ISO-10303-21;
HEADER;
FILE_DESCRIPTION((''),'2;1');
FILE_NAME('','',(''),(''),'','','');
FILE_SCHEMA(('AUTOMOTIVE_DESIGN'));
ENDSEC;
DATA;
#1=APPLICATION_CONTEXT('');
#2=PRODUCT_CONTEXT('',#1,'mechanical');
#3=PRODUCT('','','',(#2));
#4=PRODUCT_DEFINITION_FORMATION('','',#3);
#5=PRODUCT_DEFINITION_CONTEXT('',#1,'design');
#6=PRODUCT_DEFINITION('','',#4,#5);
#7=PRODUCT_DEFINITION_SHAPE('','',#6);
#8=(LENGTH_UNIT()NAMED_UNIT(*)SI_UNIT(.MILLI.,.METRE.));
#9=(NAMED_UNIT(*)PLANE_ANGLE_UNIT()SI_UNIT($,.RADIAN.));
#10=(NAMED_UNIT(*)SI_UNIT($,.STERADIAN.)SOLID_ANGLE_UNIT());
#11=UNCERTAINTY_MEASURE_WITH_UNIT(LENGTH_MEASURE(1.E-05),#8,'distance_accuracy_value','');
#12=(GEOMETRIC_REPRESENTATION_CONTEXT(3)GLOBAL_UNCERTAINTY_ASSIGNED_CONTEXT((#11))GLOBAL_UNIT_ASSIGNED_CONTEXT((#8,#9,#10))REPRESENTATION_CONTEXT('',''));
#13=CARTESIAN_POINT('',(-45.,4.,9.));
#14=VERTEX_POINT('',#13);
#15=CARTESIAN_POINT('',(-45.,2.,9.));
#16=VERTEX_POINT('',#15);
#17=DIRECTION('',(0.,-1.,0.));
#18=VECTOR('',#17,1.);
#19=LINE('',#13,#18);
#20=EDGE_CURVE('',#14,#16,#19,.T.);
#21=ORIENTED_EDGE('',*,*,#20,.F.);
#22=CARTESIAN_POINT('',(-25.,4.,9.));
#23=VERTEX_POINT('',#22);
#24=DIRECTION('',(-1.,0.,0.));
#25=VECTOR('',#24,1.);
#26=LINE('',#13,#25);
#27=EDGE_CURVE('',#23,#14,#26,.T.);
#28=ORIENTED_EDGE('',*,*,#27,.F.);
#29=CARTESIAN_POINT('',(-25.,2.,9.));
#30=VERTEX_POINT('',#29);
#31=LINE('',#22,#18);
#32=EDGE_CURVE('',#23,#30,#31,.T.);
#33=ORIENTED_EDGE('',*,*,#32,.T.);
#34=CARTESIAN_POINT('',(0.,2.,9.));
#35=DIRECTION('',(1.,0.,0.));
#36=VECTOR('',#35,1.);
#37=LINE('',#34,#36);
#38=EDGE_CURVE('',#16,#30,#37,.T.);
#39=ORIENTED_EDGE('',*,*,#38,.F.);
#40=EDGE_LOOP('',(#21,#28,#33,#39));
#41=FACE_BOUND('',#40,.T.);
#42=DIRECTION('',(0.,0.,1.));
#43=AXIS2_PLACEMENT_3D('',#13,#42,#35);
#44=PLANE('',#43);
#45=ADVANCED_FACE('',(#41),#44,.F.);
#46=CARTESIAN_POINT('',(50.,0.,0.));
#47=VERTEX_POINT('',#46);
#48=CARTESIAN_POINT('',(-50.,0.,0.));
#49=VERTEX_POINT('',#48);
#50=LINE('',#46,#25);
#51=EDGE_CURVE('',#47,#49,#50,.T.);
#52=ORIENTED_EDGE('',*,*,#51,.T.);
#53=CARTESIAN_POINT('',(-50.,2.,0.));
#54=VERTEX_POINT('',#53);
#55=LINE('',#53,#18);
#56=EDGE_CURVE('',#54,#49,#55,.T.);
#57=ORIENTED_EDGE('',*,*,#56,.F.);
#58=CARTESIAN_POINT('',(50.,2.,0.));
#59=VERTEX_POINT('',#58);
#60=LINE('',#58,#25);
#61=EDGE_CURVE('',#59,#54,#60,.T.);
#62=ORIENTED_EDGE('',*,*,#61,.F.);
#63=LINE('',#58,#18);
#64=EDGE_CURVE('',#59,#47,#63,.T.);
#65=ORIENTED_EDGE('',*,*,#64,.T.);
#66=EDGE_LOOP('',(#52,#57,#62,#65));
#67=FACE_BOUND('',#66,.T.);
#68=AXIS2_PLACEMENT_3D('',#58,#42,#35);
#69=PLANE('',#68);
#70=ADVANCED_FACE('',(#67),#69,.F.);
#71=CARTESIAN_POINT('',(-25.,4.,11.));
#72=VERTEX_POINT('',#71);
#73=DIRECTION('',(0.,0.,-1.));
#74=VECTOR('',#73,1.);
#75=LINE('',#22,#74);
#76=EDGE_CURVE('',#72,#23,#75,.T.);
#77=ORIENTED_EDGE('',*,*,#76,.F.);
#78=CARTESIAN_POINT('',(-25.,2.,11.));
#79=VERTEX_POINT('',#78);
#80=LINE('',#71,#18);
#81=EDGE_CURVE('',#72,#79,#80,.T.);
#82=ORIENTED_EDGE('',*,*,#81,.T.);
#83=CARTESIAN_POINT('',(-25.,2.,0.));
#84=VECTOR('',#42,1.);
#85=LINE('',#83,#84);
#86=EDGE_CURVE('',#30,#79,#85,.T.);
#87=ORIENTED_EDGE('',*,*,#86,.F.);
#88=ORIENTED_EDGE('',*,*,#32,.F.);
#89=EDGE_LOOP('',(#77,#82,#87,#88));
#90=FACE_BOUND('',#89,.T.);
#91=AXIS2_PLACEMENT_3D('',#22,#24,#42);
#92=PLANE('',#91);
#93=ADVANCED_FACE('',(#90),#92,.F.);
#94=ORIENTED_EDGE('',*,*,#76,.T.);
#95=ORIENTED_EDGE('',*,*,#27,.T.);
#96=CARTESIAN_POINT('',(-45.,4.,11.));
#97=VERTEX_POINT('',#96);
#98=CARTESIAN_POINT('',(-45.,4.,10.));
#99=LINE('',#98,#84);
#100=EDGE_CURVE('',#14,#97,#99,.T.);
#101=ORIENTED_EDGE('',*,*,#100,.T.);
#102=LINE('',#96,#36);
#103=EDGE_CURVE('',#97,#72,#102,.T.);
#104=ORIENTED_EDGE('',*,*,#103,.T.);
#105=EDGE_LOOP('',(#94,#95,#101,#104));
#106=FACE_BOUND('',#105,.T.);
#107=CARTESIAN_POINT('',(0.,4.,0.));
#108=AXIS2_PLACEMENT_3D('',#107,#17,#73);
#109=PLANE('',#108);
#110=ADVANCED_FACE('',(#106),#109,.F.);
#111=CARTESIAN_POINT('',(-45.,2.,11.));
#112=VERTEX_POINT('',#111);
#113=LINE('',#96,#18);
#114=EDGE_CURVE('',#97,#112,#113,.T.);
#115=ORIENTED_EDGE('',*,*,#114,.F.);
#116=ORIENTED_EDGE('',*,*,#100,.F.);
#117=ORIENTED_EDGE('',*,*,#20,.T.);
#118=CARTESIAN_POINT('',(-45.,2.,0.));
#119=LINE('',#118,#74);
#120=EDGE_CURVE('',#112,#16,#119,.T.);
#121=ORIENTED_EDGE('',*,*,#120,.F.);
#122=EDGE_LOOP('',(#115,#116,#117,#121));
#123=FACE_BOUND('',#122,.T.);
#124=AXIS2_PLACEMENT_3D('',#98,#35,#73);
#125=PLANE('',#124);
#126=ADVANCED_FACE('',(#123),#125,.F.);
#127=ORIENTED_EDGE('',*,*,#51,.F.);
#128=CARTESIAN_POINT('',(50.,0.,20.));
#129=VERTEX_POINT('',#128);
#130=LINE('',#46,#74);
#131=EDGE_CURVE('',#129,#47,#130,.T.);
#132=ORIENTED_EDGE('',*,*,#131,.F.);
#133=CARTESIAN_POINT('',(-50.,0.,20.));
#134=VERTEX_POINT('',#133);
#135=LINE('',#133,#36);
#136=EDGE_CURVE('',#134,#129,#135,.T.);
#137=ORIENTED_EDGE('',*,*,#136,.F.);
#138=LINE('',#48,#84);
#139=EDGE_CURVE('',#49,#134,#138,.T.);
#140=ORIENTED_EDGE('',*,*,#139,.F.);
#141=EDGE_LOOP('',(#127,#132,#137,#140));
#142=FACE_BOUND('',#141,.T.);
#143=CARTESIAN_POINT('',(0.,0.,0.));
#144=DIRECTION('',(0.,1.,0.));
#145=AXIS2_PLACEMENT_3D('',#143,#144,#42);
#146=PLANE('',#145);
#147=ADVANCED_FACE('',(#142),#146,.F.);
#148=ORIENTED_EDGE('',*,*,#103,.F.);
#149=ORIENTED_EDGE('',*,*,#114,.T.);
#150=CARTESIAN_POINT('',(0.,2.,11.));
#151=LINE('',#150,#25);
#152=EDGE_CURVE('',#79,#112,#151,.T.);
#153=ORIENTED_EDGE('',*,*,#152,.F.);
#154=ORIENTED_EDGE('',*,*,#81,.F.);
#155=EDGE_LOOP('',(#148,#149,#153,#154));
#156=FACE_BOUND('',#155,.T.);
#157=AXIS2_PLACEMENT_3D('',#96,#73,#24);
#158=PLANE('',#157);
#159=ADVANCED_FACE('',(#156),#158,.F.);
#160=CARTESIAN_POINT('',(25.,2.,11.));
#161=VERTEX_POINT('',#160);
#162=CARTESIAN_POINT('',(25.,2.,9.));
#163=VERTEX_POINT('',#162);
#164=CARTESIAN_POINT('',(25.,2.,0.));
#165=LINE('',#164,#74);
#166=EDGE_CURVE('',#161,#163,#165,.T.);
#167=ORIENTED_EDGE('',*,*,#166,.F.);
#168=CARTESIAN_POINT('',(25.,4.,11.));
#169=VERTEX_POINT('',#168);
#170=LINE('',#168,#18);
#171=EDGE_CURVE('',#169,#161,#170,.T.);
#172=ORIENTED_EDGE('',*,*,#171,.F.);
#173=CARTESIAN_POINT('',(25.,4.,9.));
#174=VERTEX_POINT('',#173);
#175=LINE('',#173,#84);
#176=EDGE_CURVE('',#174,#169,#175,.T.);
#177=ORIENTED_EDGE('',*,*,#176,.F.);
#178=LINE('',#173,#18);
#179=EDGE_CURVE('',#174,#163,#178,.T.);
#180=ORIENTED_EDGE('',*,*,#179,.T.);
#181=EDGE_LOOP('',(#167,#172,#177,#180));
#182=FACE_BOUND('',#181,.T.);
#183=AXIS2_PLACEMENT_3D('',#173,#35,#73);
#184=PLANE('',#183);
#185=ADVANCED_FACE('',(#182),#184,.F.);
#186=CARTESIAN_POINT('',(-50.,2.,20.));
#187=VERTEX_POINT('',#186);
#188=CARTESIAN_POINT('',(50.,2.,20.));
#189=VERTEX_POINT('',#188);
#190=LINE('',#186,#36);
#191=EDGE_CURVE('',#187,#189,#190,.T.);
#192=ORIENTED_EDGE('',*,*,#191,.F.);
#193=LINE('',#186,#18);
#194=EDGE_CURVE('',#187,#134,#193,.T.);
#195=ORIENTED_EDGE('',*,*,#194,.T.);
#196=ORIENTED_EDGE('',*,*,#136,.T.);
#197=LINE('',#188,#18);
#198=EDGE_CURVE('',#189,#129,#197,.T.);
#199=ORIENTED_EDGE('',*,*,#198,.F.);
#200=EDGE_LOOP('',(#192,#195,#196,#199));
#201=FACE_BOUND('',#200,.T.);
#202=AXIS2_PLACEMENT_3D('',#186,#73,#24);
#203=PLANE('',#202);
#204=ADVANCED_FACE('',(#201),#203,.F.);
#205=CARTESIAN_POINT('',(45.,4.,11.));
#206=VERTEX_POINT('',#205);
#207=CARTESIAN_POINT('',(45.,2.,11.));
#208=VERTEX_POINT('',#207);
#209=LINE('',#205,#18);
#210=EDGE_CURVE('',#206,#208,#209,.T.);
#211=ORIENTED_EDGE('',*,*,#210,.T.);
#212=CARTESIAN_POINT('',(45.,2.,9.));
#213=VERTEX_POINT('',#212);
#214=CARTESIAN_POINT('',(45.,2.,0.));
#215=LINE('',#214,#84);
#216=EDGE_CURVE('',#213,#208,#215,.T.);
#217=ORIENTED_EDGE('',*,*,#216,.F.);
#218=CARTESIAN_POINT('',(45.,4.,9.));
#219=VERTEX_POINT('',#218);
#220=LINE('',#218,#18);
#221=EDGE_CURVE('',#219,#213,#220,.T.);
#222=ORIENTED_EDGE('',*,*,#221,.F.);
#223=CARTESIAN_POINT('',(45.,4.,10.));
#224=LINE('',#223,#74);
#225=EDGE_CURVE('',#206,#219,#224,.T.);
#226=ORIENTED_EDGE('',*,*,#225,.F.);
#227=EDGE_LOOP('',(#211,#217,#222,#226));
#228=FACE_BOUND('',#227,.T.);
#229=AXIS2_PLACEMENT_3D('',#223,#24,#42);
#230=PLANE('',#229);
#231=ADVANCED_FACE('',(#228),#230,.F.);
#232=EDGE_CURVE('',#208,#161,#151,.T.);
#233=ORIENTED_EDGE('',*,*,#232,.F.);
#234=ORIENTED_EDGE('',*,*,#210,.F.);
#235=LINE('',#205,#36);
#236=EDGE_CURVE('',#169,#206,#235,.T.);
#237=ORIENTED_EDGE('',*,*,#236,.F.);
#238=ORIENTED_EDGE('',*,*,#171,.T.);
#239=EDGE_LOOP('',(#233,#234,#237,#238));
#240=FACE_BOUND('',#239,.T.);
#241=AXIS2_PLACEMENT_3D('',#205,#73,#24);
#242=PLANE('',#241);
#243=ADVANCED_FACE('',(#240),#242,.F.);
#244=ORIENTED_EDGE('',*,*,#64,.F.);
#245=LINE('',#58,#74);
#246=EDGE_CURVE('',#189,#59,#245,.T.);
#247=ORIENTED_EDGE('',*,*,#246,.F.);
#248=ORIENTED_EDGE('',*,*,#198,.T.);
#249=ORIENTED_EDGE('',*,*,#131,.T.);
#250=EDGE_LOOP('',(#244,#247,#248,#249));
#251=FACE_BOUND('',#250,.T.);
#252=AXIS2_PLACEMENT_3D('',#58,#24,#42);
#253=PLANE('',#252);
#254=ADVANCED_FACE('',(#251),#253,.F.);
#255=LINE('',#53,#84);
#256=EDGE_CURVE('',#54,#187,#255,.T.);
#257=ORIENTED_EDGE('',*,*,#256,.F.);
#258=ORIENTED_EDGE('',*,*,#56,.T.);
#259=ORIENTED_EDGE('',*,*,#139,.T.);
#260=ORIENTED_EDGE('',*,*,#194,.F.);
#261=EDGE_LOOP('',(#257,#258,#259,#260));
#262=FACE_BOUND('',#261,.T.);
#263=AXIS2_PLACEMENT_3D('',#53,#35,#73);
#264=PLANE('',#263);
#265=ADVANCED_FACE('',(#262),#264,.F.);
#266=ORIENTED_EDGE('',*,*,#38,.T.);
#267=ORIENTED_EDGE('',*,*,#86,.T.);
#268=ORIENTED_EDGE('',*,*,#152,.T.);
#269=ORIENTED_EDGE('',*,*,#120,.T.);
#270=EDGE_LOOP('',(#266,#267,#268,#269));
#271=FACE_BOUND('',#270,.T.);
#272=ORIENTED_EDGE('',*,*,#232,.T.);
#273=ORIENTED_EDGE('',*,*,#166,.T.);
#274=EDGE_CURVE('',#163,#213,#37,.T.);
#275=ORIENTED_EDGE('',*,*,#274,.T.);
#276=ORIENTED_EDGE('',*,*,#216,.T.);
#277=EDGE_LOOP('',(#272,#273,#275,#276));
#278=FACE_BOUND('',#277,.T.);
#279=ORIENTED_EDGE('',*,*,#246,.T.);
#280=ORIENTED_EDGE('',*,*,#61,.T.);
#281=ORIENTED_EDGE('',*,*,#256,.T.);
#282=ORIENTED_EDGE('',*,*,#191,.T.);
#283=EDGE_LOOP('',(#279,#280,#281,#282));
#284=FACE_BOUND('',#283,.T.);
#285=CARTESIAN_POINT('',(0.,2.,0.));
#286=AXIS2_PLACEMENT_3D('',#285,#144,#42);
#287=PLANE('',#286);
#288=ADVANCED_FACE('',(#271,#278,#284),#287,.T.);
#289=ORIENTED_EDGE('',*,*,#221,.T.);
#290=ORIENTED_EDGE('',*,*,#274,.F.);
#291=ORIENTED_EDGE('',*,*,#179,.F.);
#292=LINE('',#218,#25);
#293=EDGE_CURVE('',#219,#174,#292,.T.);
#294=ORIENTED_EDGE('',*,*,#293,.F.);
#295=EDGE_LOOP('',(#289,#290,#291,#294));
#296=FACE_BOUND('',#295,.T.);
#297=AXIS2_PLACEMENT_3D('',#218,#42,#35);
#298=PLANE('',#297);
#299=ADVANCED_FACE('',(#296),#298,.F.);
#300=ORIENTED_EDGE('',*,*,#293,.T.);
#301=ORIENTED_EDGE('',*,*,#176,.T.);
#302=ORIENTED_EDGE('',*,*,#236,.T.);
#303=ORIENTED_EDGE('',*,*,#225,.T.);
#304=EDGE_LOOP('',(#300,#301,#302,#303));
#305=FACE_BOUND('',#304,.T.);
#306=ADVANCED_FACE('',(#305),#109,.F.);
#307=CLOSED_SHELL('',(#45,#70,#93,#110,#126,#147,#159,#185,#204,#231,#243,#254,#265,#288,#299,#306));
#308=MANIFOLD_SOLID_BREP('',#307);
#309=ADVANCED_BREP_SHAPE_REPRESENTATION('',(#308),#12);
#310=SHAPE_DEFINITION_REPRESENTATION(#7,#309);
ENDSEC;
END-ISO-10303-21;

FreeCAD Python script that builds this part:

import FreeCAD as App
import Part
import Sketcher
from FreeCAD import Vector
Q = App.Units.Quantity

doc = App.newDocument("Part")
params = doc.addObject("Spreadsheet::Sheet", "Params")
for row, (alias, value) in enumerate([
    ("sketch1_width", "100 mm"),
    ("sketch1_height", "20 mm"),
    ("pad1_length", "2 mm"),
    ("sketch2_width", "20 mm"),
    ("sketch2_height", "2 mm"),
    ("pad2_length", "4 mm"),
], start=1):
    params.set(f"A{row}", alias)
    params.set(f"B{row}", "=" + value)
    params.setAlias(f"B{row}", alias)

body = doc.addObject("PartDesign::Body", "Body")

# Sketch on XZ plane
sketch1 = body.newObject("Sketcher::SketchObject", "Sketch")
sketch1.AttachmentSupport = (doc.getObject("XZ_Plane"), [""])
sketch1.MapMode = "FlatFace"
sketch1.addGeometry(Part.LineSegment(Vector(-50, 0, 0), Vector(-50, 20, 0)), False)
sketch1.addGeometry(Part.LineSegment(Vector(-50, 20, 0), Vector(50, 20, 0)), False)
sketch1.addGeometry(Part.LineSegment(Vector(50, 20, 0), Vector(50, 0, 0)), False)
sketch1.addGeometry(Part.LineSegment(Vector(50, 0, 0), Vector(-50, 0, 0)), False)
sketch1.addConstraint(Sketcher.Constraint("Coincident", 0, 2, 1, 1))
sketch1.addConstraint(Sketcher.Constraint("Coincident", 1, 2, 2, 1))
sketch1.addConstraint(Sketcher.Constraint("Coincident", 2, 2, 3, 1))
sketch1.addConstraint(Sketcher.Constraint("Coincident", 3, 2, 0, 1))
sketch1.addConstraint(Sketcher.Constraint("Vertical", 0))
sketch1.addConstraint(Sketcher.Constraint("Horizontal", 1))
sketch1.addConstraint(Sketcher.Constraint("Vertical", 2))
sketch1.addConstraint(Sketcher.Constraint("Horizontal", 3))
sketch1.addConstraint(Sketcher.Constraint("Symmetric", 2, 2, 3, 2, -1, 1))
sketch1.addConstraint(Sketcher.Constraint("DistanceX", 1, 1, 1, 2, Q("100 mm")))
sketch1.addConstraint(Sketcher.Constraint("DistanceY", 0, 1, 0, 2, Q("20 mm")))
sketch1.setExpression("Constraints[9]", "Params.sketch1_width")
sketch1.setExpression("Constraints[10]", "Params.sketch1_height")
pad1 = body.newObject("PartDesign::Pad", "Pad")
pad1.Profile = sketch1
pad1.setExpression("Length", "Params.pad1_length")
pad1.Reversed = True

# Sketch on XZ plane
sketch2 = body.newObject("Sketcher::SketchObject", "Sketch001")
sketch2.AttachmentSupport = (doc.getObject("XZ_Plane"), [""])
sketch2.MapMode = "FlatFace"
sketch2.addGeometry(Part.LineSegment(Vector(-45, 11, 0), Vector(-25, 11, 0)), False)
sketch2.addGeometry(Part.LineSegment(Vector(-25, 11, 0), Vector(-25, 9, 0)), False)
sketch2.addGeometry(Part.LineSegment(Vector(-25, 9, 0), Vector(-45, 9, 0)), False)
sketch2.addGeometry(Part.LineSegment(Vector(-45, 9, 0), Vector(-45, 11, 0)), False)
sketch2.addGeometry(Part.LineSegment(Vector(45, 9, 0), Vector(25, 9, 0)), False)
sketch2.addGeometry(Part.LineSegment(Vector(25, 9, 0), Vector(25, 11, 0)), False)
sketch2.addGeometry(Part.LineSegment(Vector(25, 11, 0), Vector(45, 11, 0)), False)
sketch2.addGeometry(Part.LineSegment(Vector(45, 11, 0), Vector(45, 9, 0)), False)
sketch2.addConstraint(Sketcher.Constraint("Coincident", 0, 2, 1, 1))
sketch2.addConstraint(Sketcher.Constraint("Coincident", 1, 2, 2, 1))
sketch2.addConstraint(Sketcher.Constraint("Coincident", 2, 2, 3, 1))
sketch2.addConstraint(Sketcher.Constraint("Coincident", 3, 2, 0, 1))
sketch2.addConstraint(Sketcher.Constraint("Coincident", 4, 2, 5, 1))
sketch2.addConstraint(Sketcher.Constraint("Coincident", 5, 2, 6, 1))
sketch2.addConstraint(Sketcher.Constraint("Coincident", 6, 2, 7, 1))
sketch2.addConstraint(Sketcher.Constraint("Coincident", 7, 2, 4, 1))
sketch2.addConstraint(Sketcher.Constraint("Horizontal", 0))
sketch2.addConstraint(Sketcher.Constraint("Vertical", 1))
sketch2.addConstraint(Sketcher.Constraint("Horizontal", 2))
sketch2.addConstraint(Sketcher.Constraint("Vertical", 3))
sketch2.addConstraint(Sketcher.Constraint("Horizontal", 4))
sketch2.addConstraint(Sketcher.Constraint("Vertical", 5))
sketch2.addConstraint(Sketcher.Constraint("Horizontal", 6))
sketch2.addConstraint(Sketcher.Constraint("Vertical", 7))
sketch2.addConstraint(Sketcher.Constraint("Symmetric", 1, 2, 4, 2, -2))
sketch2.addConstraint(Sketcher.Constraint("Symmetric", 3, 2, 6, 2, -2))
sketch2.addConstraint(Sketcher.Constraint("DistanceX", 0, 1, 0, 2, Q("20 mm")))
sketch2.addConstraint(Sketcher.Constraint("DistanceY", 1, 2, 1, 1, Q("2 mm")))
sketch2.addConstraint(Sketcher.Constraint("DistanceX", 0, 2, -1, 1, Q("25 mm")))
sketch2.addConstraint(Sketcher.Constraint("DistanceY", -1, 1, 0, 2, Q("11 mm")))
sketch2.setExpression("Constraints[18]", "Params.sketch2_width")
sketch2.setExpression("Constraints[19]", "Params.sketch2_height")
pad2 = body.newObject("PartDesign::Pad", "Pad001")
pad2.Profile = sketch2
pad2.setExpression("Length", "Params.pad2_length")
pad2.Reversed = True

doc.recompute()
